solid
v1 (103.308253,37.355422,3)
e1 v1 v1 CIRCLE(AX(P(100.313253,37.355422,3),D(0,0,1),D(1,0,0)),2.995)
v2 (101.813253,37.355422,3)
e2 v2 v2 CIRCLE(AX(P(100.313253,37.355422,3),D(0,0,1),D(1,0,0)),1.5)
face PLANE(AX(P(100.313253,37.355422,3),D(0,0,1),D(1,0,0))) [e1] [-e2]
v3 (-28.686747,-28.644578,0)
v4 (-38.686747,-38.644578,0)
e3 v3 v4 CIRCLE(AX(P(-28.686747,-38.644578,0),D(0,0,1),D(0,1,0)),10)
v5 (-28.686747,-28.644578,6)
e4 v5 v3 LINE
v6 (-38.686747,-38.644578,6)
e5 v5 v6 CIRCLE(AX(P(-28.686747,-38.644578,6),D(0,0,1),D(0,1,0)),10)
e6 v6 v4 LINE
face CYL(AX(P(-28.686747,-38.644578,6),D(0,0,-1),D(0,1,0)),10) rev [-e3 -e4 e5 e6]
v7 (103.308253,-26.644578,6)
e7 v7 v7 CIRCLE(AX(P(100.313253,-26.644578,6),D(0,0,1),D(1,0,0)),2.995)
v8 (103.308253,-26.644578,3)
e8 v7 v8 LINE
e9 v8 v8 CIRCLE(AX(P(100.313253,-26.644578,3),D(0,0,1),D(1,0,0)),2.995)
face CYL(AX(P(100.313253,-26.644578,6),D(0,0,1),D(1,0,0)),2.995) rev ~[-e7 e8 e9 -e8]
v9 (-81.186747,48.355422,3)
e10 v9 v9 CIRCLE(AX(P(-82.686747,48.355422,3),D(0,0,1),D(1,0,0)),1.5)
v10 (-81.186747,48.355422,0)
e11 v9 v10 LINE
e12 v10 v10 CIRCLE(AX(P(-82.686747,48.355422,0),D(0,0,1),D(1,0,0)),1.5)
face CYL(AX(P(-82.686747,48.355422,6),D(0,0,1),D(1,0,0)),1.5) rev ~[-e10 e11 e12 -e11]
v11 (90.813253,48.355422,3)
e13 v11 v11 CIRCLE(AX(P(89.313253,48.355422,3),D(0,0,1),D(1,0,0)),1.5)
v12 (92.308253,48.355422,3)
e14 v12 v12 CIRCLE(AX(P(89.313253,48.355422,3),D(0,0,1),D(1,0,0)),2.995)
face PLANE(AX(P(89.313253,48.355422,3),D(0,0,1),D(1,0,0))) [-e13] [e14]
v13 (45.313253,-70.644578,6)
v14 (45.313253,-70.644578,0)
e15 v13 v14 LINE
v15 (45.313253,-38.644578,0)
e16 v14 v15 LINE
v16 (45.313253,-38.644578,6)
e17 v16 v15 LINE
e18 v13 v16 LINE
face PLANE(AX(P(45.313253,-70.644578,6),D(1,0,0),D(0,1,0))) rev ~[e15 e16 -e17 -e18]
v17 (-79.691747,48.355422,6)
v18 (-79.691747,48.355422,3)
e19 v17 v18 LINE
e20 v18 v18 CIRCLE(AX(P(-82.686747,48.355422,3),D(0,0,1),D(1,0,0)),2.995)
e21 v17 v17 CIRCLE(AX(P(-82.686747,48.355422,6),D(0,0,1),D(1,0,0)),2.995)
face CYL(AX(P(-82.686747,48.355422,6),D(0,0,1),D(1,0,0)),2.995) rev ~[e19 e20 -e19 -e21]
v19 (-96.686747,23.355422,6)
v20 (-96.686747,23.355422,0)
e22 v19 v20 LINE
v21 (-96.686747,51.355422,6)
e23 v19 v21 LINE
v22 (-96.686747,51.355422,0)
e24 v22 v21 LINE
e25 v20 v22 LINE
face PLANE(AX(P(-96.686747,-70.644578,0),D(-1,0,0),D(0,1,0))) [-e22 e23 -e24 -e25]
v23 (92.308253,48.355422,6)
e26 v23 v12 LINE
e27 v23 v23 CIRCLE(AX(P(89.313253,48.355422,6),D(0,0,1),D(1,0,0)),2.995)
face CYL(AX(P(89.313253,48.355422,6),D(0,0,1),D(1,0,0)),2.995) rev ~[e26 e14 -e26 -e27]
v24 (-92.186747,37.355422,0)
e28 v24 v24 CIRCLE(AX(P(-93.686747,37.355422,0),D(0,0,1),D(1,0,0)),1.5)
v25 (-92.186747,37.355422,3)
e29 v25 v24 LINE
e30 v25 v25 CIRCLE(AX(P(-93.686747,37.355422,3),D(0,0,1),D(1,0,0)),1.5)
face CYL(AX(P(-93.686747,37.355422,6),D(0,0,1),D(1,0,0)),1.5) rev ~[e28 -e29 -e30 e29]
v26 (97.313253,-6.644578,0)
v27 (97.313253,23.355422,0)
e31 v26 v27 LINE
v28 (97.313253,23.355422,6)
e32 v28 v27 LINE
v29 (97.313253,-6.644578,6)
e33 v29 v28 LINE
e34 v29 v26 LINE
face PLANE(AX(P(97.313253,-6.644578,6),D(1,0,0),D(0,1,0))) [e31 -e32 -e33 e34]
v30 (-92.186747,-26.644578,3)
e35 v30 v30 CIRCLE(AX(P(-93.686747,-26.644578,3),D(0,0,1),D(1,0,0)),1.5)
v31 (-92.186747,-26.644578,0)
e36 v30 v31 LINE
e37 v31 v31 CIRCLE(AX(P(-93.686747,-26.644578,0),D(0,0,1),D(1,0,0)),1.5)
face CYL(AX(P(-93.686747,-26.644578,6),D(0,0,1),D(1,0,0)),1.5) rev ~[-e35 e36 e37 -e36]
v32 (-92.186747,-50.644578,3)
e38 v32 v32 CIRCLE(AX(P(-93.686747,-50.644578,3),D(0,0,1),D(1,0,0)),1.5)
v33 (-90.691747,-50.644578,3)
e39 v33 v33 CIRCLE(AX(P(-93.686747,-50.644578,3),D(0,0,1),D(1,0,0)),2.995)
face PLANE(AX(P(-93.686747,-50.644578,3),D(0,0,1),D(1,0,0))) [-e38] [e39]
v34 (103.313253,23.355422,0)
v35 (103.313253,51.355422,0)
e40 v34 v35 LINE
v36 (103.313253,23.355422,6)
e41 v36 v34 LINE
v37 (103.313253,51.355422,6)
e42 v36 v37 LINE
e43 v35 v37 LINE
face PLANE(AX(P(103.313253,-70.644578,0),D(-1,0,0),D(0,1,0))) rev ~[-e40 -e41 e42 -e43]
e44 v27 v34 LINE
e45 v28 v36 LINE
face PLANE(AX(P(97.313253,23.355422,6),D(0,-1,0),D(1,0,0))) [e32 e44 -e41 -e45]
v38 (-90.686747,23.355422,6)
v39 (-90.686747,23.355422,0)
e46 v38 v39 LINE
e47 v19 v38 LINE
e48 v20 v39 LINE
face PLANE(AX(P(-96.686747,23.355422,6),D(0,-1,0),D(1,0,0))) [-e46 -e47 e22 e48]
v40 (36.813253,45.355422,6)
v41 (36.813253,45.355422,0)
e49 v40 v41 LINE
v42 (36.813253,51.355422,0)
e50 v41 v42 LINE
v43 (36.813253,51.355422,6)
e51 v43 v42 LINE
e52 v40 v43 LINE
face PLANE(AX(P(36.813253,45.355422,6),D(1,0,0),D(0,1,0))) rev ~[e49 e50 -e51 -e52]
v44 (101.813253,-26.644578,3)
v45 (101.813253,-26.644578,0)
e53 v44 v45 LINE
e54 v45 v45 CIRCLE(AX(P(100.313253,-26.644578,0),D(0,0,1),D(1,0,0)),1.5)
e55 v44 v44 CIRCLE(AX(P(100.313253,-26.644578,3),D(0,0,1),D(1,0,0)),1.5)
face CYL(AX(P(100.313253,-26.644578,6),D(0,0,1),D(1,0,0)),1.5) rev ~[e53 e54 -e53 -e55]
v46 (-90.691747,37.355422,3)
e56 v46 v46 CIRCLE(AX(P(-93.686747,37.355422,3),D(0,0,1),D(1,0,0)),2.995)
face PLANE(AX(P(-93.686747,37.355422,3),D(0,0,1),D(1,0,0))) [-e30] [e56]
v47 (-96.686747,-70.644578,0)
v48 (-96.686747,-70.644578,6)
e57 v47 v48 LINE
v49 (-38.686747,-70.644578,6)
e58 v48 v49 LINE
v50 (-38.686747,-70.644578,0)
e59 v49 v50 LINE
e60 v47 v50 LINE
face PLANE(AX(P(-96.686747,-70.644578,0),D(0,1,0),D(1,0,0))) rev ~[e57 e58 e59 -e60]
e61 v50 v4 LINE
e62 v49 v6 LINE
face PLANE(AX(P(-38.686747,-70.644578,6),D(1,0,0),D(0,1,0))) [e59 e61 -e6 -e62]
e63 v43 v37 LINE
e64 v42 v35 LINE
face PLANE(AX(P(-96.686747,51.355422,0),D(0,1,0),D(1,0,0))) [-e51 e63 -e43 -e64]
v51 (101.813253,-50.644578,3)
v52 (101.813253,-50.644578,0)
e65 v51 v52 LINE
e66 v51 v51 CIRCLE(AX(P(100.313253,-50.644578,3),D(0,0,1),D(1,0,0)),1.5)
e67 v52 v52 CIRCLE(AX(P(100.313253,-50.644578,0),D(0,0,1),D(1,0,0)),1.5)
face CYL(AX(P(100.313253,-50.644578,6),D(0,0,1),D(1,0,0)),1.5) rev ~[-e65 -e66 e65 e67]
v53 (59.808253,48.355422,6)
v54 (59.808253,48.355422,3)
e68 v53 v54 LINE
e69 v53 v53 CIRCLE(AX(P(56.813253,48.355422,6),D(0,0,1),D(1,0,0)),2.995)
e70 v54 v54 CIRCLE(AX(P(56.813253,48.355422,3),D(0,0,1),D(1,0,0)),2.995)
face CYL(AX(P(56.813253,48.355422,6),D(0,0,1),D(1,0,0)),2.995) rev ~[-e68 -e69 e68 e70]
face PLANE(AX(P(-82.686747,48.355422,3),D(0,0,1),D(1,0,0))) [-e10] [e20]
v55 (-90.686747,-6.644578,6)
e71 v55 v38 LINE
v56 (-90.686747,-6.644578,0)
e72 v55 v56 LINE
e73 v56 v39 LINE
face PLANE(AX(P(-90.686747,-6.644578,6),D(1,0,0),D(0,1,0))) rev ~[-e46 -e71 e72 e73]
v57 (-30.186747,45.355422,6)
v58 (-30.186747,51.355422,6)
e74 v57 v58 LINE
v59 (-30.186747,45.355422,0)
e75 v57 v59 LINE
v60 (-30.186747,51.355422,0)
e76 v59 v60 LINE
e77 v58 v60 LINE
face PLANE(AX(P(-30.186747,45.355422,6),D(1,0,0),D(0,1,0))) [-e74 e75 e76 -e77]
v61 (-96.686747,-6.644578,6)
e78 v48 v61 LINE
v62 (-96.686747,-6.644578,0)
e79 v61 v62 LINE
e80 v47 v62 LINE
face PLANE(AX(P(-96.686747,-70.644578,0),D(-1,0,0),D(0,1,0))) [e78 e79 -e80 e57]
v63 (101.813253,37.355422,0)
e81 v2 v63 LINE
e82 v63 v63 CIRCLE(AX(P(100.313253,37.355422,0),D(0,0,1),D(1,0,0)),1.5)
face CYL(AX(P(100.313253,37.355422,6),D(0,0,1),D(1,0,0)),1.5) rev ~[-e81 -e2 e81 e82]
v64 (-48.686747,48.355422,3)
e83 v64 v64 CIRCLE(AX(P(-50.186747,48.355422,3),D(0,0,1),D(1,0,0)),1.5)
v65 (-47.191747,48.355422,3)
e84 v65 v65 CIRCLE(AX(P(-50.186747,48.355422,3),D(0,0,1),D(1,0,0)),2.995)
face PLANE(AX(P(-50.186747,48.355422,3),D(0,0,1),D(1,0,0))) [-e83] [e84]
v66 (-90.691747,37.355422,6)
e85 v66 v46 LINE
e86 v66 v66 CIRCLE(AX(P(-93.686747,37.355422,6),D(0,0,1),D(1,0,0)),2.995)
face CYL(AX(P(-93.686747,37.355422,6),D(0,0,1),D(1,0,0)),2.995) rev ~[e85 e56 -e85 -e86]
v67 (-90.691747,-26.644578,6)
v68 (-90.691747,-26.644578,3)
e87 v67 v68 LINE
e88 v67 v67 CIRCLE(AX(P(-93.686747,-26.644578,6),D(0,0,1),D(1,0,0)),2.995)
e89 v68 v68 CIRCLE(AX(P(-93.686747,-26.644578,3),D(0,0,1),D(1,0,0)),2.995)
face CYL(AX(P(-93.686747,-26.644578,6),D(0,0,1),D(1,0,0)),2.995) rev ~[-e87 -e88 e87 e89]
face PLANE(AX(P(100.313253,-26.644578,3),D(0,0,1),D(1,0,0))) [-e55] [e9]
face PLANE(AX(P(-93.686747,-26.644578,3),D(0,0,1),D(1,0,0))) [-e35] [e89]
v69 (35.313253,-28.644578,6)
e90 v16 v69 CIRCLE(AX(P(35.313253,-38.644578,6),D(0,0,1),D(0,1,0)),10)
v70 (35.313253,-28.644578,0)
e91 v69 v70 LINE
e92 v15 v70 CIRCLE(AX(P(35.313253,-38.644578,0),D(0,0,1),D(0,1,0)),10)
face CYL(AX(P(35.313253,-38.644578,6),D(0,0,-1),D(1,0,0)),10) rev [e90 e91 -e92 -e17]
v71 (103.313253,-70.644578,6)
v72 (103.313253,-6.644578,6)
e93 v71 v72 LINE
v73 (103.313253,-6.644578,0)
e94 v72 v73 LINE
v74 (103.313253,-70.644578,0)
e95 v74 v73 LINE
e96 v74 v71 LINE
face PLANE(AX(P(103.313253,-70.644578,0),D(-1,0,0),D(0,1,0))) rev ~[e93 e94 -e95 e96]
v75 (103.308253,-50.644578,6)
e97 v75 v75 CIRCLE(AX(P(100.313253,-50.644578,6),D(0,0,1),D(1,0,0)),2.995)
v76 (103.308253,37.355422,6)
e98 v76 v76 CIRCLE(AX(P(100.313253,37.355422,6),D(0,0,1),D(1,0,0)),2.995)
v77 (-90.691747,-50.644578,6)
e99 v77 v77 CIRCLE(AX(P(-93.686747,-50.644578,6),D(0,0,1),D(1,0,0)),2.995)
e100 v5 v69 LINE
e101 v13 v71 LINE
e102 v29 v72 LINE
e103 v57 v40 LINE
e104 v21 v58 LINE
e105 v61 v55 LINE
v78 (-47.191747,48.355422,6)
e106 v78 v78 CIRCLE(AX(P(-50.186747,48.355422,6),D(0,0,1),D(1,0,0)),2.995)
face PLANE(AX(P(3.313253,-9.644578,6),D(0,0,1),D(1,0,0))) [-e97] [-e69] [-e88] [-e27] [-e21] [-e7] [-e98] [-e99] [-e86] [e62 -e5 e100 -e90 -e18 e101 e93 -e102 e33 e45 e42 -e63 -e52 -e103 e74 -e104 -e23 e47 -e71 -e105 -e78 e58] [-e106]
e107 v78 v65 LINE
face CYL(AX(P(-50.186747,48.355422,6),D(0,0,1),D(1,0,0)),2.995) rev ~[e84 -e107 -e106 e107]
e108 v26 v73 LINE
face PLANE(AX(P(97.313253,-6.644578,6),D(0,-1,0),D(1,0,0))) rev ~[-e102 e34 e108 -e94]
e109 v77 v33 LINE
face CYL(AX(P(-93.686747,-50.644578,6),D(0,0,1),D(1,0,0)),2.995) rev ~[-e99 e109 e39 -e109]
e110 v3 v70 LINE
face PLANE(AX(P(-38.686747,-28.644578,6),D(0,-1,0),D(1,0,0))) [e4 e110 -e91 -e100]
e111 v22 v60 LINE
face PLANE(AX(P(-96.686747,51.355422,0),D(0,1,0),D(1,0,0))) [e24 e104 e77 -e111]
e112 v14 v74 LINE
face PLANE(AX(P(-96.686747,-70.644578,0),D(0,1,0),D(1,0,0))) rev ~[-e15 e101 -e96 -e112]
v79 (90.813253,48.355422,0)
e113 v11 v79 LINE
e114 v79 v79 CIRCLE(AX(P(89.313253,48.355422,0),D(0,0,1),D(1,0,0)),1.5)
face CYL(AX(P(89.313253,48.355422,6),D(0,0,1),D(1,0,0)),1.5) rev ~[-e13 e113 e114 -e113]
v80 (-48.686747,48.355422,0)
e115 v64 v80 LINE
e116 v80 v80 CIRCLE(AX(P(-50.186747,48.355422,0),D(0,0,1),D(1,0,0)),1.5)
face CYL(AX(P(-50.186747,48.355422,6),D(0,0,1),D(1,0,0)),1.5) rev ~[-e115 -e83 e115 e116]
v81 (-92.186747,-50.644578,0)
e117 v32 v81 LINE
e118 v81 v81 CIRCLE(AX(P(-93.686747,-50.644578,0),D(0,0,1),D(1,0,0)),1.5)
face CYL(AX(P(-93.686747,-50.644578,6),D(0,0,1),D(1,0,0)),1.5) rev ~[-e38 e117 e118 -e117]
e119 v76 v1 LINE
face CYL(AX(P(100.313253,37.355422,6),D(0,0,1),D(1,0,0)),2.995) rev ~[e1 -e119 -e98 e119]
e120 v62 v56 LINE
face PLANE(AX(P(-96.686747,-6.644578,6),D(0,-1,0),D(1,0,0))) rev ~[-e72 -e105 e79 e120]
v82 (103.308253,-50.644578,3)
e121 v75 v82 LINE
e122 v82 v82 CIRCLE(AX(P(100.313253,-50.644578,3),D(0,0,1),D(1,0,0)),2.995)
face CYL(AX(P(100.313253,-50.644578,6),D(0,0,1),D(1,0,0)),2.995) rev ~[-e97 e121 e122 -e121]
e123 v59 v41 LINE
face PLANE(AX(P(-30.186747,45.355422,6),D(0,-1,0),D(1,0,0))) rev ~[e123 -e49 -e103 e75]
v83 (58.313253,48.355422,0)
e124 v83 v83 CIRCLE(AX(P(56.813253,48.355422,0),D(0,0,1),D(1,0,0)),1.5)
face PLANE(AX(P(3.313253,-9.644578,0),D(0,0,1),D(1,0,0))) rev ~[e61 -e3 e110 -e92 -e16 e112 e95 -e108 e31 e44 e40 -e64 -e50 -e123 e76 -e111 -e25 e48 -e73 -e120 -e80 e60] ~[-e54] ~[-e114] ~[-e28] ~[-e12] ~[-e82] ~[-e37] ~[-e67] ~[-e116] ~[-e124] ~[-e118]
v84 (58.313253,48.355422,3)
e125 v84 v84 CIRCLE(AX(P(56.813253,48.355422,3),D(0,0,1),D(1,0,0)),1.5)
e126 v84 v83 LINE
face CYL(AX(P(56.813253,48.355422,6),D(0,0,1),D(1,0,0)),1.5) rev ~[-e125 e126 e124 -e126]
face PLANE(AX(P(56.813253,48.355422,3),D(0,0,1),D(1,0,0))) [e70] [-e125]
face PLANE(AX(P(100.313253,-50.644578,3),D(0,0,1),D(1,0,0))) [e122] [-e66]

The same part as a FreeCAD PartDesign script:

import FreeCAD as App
import Part
import Sketcher


def edges_at(feature, points):
    """Names of the edges that pass closest to the given points."""
    edges = feature.Shape.Edges
    near = lambda p: min(range(len(edges)), key=lambda i: edges[i].distToShape(Part.Vertex(*p))[0])
    return sorted({f"Edge{near(p) + 1}" for p in points})


def add_polygon(sketch, points):
    """Adds a closed chain of lines whose ends are joined by coincident constraints."""
    first, n = sketch.GeometryCount, len(points)
    for a, b in zip(points, points[1:] + points[:1]):
        sketch.addGeometry(Part.LineSegment(App.Vector(*a, 0), App.Vector(*b, 0)), False)
    for i in range(n):
        sketch.addConstraint(Sketcher.Constraint("Coincident", first + i, 2, first + (i + 1) % n, 1))

doc = App.newDocument("Part")
body = doc.addObject("PartDesign::Body", "Body")

# Sketch on XY plane
sketch1 = doc.addObject("Sketcher::SketchObject", "Sketch")
body.addObject(sketch1)
sketch1.AttachmentSupport = (doc.XY_Plane, [""])
sketch1.MapMode = "FlatFace"
add_polygon(sketch1, [(-97, 51), (-97, -71), (103, -71), (103, 51)])  # lines 0-3
sketch1.addConstraint([
    Sketcher.Constraint("Vertical", 0),
    Sketcher.Constraint("Horizontal", 1),
    Sketcher.Constraint("Vertical", 2),
    Sketcher.Constraint("Horizontal", 3),
    Sketcher.Constraint("DistanceX", 1, 1, 1, 2, 200.0),
    Sketcher.Constraint("DistanceY", 0, 2, 0, 1, 122.0),
    Sketcher.Constraint("DistanceY", 0, 2, -1, 1, 70.644578),
    Sketcher.Constraint("DistanceX", 0, 2, -1, 1, 96.686747),
])
pad1 = doc.addObject("PartDesign::Pad", "Pad")
body.addObject(pad1)
pad1.Profile = sketch1
pad1.Length = 6

# Sketch on XY plane
sketch2 = doc.addObject("Sketcher::SketchObject", "Sketch001")
body.addObject(sketch2)
sketch2.AttachmentSupport = (doc.XY_Plane, [""])
sketch2.MapMode = "FlatFace"
sketch2.AttachmentOffset = App.Placement(App.Vector(0, 0, 6), App.Rotation())
add_polygon(sketch2, [(-30, 51), (-30, 45), (37, 45), (37, 51)])  # lines 0-3
add_polygon(sketch2, [(-97, 23), (-97, -7), (-91, -7), (-91, 23)])  # lines 4-7
add_polygon(sketch2, [(97, 23), (97, -7), (103, -7), (103, 23)])  # lines 8-11
add_polygon(sketch2, [(-39, -29), (-39, -71), (45, -71), (45, -29)])  # lines 12-15
sketch2.addConstraint([
    Sketcher.Constraint("Vertical", 0),
    Sketcher.Constraint("Horizontal", 1),
    Sketcher.Constraint("Vertical", 2),
    Sketcher.Constraint("Horizontal", 3),
    Sketcher.Constraint("Vertical", 4),
    Sketcher.Constraint("Horizontal", 5),
    Sketcher.Constraint("Vertical", 6),
    Sketcher.Constraint("Horizontal", 7),
    Sketcher.Constraint("Vertical", 8),
    Sketcher.Constraint("Horizontal", 9),
    Sketcher.Constraint("Vertical", 10),
    Sketcher.Constraint("Horizontal", 11),
    Sketcher.Constraint("Vertical", 12),
    Sketcher.Constraint("Horizontal", 13),
    Sketcher.Constraint("Vertical", 14),
    Sketcher.Constraint("Horizontal", 15),
    Sketcher.Constraint("Horizontal", 5, 2, 8, 2),
    Sketcher.Constraint("Horizontal", 7, 2, 10, 2),
    Sketcher.Constraint("Equal", 7, 9),
    Sketcher.Constraint("Equal", 11, 0),
    Sketcher.Constraint("DistanceX", 1, 1, 1, 2, 67.0),
    Sketcher.Constraint("DistanceX", 5, 1, 5, 2, 6.0),
    Sketcher.Constraint("DistanceX", 13, 1, 13, 2, 84.0),
    Sketcher.Constraint("DistanceY", 4, 2, 4, 1, 30.0),
    Sketcher.Constraint("DistanceY", 12, 2, 12, 1, 42.0),
    Sketcher.Constraint("DistanceY", 4, 2, 0, 2, 52.0),
    Sketcher.Constraint("DistanceX", 5, 2, 8, 2, 188.0),
    Sketcher.Constraint("DistanceX", 5, 2, 12, 2, 52.0),
    Sketcher.Constraint("DistanceY", 12, 2, 5, 2, 64.0),
    Sketcher.Constraint("DistanceX", 4, 2, 0, 2, 66.5),
    Sketcher.Constraint("DistanceY", -1, 1, 0, 2, 45.355422),
    Sketcher.Constraint("DistanceX", 0, 2, -1, 1, 30.186747),
])
pocket1 = doc.addObject("PartDesign::Pocket", "Pocket")
body.addObject(pocket1)
pocket1.Profile = sketch2
pocket1.Length = 6
doc.recompute()

fillet = doc.addObject("PartDesign::Fillet", "Fillet")
body.addObject(fillet)
fillet.Base = (pocket1, edges_at(pocket1, [(-38.687, -28.645, 3), (45.313, -28.645, 3)]))
fillet.Radius = 10

# Sketch on XY plane
sketch3 = doc.addObject("Sketcher::SketchObject", "Sketch002")
body.addObject(sketch3)
sketch3.AttachmentSupport = (doc.XY_Plane, [""])
sketch3.MapMode = "FlatFace"
sketch3.AttachmentOffset = App.Placement(App.Vector(0, 0, 6), App.Rotation())
sketch3.addGeometry([
    Part.Circle(App.Vector(-93.7, -50.6, 0), App.Vector(0, 0, 1), 1.5),  # 0
    Part.Circle(App.Vector(-93.7, -26.6, 0), App.Vector(0, 0, 1), 1.5),  # 1
    Part.Circle(App.Vector(-93.7, 37.4, 0), App.Vector(0, 0, 1), 1.5),  # 2
    Part.Circle(App.Vector(-50.2, 48.4, 0), App.Vector(0, 0, 1), 1.5),  # 3
    Part.Circle(App.Vector(56.8, 48.4, 0), App.Vector(0, 0, 1), 1.5),  # 4
    Part.Circle(App.Vector(100.3, 37.4, 0), App.Vector(0, 0, 1), 1.5),  # 5
    Part.Circle(App.Vector(100.3, -26.6, 0), App.Vector(0, 0, 1), 1.5),  # 6
    Part.Circle(App.Vector(100.3, -50.6, 0), App.Vector(0, 0, 1), 1.5),  # 7
    Part.Circle(App.Vector(-82.7, 48.4, 0), App.Vector(0, 0, 1), 1.5),  # 8
    Part.Circle(App.Vector(89.3, 48.4, 0), App.Vector(0, 0, 1), 1.5),  # 9
], False)
sketch3.addConstraint([
    Sketcher.Constraint("Equal", 0, 1),
    Sketcher.Constraint("Equal", 1, 2),
    Sketcher.Constraint("Equal", 2, 3),
    Sketcher.Constraint("Equal", 3, 4),
    Sketcher.Constraint("Equal", 4, 5),
    Sketcher.Constraint("Equal", 5, 6),
    Sketcher.Constraint("Equal", 6, 7),
    Sketcher.Constraint("Equal", 7, 8),
    Sketcher.Constraint("Equal", 8, 9),
    Sketcher.Constraint("Horizontal", 3, 3, 4, 3),
    Sketcher.Constraint("Horizontal", 2, 3, 5, 3),
    Sketcher.Constraint("Horizontal", 1, 3, 6, 3),
    Sketcher.Constraint("Horizontal", 0, 3, 7, 3),
    Sketcher.Constraint("Horizontal", 4, 3, 8, 3),
    Sketcher.Constraint("Horizontal", 8, 3, 9, 3),
    Sketcher.Constraint("Vertical", 0, 3, 1, 3),
    Sketcher.Constraint("Vertical", 1, 3, 2, 3),
    Sketcher.Constraint("Vertical", 5, 3, 6, 3),
    Sketcher.Constraint("Vertical", 6, 3, 7, 3),
    Sketcher.Constraint("Diameter", 0, 3.0),
    Sketcher.Constraint("DistanceY", 0, 3, 1, 3, 24.0),
    Sketcher.Constraint("DistanceY", 1, 3, 2, 3, 64.0),
    Sketcher.Constraint("DistanceY", 2, 3, 3, 3, 11.0),
    Sketcher.Constraint("DistanceX", 3, 3, 4, 3, 107.0),
    Sketcher.Constraint("DistanceX", 2, 3, 5, 3, 194.0),
    Sketcher.Constraint("DistanceX", 2, 3, 8, 3, 11.0),
    Sketcher.Constraint("DistanceX", 9, 3, 5, 3, 11.0),
    Sketcher.Constraint("DistanceX", 2, 3, 3, 3, 43.5),
    Sketcher.Constraint("DistanceY", 0, 3, -1, 1, 50.644578),
    Sketcher.Constraint("DistanceX", 0, 3, -1, 1, 93.686747),
])
pocket2 = doc.addObject("PartDesign::Pocket", "Pocket001")
body.addObject(pocket2)
pocket2.Profile = sketch3
pocket2.Length = 6

# Sketch on XY plane
sketch4 = doc.addObject("Sketcher::SketchObject", "Sketch003")
body.addObject(sketch4)
sketch4.AttachmentSupport = (doc.XY_Plane, [""])
sketch4.MapMode = "FlatFace"
sketch4.AttachmentOffset = App.Placement(App.Vector(0, 0, 6), App.Rotation())
sketch4.addGeometry([
    Part.Circle(App.Vector(-93.7, -50.6, 0), App.Vector(0, 0, 1), 3),  # 0
    Part.Circle(App.Vector(-93.7, -26.6, 0), App.Vector(0, 0, 1), 3),  # 1
    Part.Circle(App.Vector(-93.7, 37.4, 0), App.Vector(0, 0, 1), 3),  # 2
    Part.Circle(App.Vector(-82.7, 48.4, 0), App.Vector(0, 0, 1), 3),  # 3
    Part.Circle(App.Vector(-50.2, 48.4, 0), App.Vector(0, 0, 1), 3),  # 4
    Part.Circle(App.Vector(56.8, 48.4, 0), App.Vector(0, 0, 1), 3),  # 5
    Part.Circle(App.Vector(89.3, 48.4, 0), App.Vector(0, 0, 1), 3),  # 6
    Part.Circle(App.Vector(100.3, 37.4, 0), App.Vector(0, 0, 1), 3),  # 7
    Part.Circle(App.Vector(100.3, -26.6, 0), App.Vector(0, 0, 1), 3),  # 8
    Part.Circle(App.Vector(100.3, -50.6, 0), App.Vector(0, 0, 1), 3),  # 9
], False)
sketch4.addConstraint([
    Sketcher.Constraint("Equal", 0, 1),
    Sketcher.Constraint("Equal", 1, 2),
    Sketcher.Constraint("Equal", 2, 3),
    Sketcher.Constraint("Equal", 3, 4),
    Sketcher.Constraint("Equal", 4, 5),
    Sketcher.Constraint("Equal", 5, 6),
    Sketcher.Constraint("Equal", 6, 7),
    Sketcher.Constraint("Equal", 7, 8),
    Sketcher.Constraint("Equal", 8, 9),
    Sketcher.Constraint("Horizontal", 3, 3, 4, 3),
    Sketcher.Constraint("Horizontal", 4, 3, 5, 3),
    Sketcher.Constraint("Horizontal", 5, 3, 6, 3),
    Sketcher.Constraint("Horizontal", 2, 3, 7, 3),
    Sketcher.Constraint("Horizontal", 1, 3, 8, 3),
    Sketcher.Constraint("Horizontal", 0, 3, 9, 3),
    Sketcher.Constraint("Vertical", 0, 3, 1, 3),
    Sketcher.Constraint("Vertical", 1, 3, 2, 3),
    Sketcher.Constraint("Vertical", 7, 3, 8, 3),
    Sketcher.Constraint("Vertical", 8, 3, 9, 3),
    Sketcher.Constraint("Diameter", 0, 5.99),
    Sketcher.Constraint("DistanceY", 0, 3, 1, 3, 24.0),
    Sketcher.Constraint("DistanceY", 1, 3, 2, 3, 64.0),
    Sketcher.Constraint("DistanceX", 2, 3, 3, 3, 11.0),
    Sketcher.Constraint("DistanceY", 2, 3, 3, 3, 11.0),
    Sketcher.Constraint("DistanceX", 4, 3, 5, 3, 107.0),
    Sketcher.Constraint("DistanceX", 3, 3, 6, 3, 172.0),
    Sketcher.Constraint("DistanceX", 6, 3, 7, 3, 11.0),
    Sketcher.Constraint("DistanceX", 3, 3, 4, 3, 32.5),
    Sketcher.Constraint("DistanceY", 0, 3, -1, 1, 50.644578),
    Sketcher.Constraint("DistanceX", 0, 3, -1, 1, 93.686747),
])
pocket3 = doc.addObject("PartDesign::Pocket", "Pocket002")
body.addObject(pocket3)
pocket3.Profile = sketch4
pocket3.Length = 3

doc.recompute()
